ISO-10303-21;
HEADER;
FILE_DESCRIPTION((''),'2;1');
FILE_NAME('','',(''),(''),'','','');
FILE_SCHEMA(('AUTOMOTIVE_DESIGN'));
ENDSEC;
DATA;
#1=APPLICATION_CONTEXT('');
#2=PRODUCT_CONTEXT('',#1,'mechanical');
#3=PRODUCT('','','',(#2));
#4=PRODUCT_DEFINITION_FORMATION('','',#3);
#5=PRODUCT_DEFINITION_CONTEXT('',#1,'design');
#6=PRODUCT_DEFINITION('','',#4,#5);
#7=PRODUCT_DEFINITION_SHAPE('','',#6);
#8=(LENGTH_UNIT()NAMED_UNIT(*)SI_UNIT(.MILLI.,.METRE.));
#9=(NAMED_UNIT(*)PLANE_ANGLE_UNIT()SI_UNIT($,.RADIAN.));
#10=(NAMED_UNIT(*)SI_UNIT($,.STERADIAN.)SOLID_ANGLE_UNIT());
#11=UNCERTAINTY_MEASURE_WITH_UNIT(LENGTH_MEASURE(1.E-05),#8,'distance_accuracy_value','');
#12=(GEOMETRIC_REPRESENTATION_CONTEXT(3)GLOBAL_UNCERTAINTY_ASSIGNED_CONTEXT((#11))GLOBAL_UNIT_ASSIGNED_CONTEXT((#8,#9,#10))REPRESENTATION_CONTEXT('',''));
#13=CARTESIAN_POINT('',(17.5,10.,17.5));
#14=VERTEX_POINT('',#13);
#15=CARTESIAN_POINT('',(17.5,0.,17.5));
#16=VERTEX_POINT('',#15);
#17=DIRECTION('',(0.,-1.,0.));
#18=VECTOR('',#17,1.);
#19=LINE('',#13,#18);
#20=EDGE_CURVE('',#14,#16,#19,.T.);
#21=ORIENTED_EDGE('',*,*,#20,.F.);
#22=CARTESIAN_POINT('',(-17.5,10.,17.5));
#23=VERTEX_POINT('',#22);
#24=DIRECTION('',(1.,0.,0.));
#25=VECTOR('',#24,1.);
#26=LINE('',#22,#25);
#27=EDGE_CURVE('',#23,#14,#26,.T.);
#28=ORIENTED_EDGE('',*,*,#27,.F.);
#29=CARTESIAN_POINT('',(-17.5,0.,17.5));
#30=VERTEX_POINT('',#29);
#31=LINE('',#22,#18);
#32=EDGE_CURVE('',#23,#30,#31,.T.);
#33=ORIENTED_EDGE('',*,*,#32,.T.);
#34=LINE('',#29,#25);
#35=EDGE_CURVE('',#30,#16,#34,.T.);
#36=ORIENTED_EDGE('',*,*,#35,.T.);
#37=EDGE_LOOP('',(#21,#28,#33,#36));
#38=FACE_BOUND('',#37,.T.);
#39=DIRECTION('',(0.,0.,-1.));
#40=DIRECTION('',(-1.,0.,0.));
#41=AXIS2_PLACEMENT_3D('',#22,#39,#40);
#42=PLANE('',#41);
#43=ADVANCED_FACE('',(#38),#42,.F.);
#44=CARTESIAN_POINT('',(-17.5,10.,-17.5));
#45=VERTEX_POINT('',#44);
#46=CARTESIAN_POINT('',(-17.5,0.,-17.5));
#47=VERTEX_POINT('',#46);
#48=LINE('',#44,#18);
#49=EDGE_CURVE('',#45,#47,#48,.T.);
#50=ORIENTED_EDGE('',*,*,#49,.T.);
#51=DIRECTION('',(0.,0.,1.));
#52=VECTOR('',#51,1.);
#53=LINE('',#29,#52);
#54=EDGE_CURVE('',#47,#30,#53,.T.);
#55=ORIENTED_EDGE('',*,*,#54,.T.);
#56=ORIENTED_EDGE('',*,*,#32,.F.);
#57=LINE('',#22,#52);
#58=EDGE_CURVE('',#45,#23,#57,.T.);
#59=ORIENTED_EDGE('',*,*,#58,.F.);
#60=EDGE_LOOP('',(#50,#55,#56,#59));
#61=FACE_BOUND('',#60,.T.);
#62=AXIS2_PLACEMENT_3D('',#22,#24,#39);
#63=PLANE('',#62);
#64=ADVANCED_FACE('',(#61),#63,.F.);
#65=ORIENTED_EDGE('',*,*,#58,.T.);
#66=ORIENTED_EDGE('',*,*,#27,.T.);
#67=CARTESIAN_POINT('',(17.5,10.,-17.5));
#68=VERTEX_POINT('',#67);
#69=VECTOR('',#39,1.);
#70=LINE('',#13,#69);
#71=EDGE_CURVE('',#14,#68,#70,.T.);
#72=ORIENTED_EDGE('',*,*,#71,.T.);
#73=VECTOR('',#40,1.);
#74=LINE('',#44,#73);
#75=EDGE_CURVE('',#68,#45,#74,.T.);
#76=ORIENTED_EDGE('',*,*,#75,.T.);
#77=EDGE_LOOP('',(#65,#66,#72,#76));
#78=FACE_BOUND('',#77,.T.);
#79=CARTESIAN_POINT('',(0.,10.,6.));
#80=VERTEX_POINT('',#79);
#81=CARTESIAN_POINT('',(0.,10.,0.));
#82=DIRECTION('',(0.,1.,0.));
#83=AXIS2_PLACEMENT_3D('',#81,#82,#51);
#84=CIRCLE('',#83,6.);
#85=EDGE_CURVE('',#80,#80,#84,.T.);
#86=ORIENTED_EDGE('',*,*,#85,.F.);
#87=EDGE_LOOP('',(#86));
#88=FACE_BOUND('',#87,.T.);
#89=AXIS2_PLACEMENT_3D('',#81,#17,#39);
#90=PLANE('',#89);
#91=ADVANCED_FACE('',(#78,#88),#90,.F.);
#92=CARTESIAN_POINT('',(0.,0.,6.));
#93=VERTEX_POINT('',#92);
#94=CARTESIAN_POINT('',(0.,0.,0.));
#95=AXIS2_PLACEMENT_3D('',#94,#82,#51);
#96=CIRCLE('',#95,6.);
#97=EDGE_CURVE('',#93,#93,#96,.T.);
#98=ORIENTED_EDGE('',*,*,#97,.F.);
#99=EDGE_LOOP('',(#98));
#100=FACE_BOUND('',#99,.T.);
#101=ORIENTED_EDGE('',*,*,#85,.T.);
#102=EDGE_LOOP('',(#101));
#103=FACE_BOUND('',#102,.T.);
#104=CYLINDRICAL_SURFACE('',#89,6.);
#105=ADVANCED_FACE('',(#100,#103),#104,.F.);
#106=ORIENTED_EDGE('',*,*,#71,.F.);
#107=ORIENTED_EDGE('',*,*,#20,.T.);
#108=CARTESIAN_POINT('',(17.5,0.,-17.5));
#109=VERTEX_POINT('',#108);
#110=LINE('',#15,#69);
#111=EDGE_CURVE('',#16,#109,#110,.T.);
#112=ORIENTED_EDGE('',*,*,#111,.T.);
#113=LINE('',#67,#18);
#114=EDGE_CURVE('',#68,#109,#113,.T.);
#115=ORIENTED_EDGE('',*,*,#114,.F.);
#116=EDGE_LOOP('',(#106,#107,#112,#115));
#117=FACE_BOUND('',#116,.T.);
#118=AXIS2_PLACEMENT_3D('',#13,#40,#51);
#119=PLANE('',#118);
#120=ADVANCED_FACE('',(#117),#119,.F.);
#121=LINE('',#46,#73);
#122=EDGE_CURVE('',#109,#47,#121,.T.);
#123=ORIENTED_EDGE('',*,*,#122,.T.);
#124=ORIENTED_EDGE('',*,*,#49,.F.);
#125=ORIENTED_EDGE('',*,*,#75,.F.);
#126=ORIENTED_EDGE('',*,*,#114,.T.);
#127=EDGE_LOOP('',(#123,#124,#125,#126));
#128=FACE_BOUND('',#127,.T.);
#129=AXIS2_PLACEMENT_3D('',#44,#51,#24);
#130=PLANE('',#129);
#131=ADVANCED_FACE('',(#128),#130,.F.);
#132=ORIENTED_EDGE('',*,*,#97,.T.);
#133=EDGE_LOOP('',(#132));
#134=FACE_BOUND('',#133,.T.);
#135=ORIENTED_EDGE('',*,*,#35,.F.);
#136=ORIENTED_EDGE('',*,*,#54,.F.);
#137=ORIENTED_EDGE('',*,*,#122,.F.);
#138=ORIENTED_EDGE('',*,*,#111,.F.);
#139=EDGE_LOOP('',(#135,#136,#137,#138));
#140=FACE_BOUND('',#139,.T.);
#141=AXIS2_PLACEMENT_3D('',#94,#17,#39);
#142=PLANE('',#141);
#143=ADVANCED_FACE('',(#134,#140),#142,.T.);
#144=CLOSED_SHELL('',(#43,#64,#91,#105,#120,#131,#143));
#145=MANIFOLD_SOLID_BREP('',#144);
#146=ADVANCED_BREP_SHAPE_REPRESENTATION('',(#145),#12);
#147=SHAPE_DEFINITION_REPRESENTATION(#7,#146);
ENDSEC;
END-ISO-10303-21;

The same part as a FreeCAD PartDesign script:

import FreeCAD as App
import Part
import Sketcher
Q = App.Units.Quantity


def add_polygon(sketch, points):
    """Adds a closed chain of lines whose ends are joined by coincident constraints."""
    first, n = sketch.GeometryCount, len(points)
    for a, b in zip(points, points[1:] + points[:1]):
        sketch.addGeometry(Part.LineSegment(App.Vector(*a, 0), App.Vector(*b, 0)), False)
    for i in range(n):
        sketch.addConstraint(Sketcher.Constraint("Coincident", first + i, 2, first + (i + 1) % n, 1))

doc = App.newDocument("Part")
params = doc.addObject("Spreadsheet::Sheet", "Params")
for row, (alias, value) in enumerate([
    ("sketch1_diameter", "12 mm"),
    ("sketch1_width", "35 mm"),
    ("pad1_length", "10 mm"),
], start=1):
    params.set(f"A{row}", alias)
    params.set(f"B{row}", "=" + value)
    params.setAlias(f"B{row}", alias)

body = doc.addObject("PartDesign::Body", "Body")

sketch1 = body.newObject("Sketcher::SketchObject", "Sketch")
sketch1.AttachmentSupport = (doc.getObject("XZ_Plane"), [""])
sketch1.MapMode = "FlatFace"
add_polygon(sketch1, [(-18, -18), (-18, 18), (18, 18), (18, -18)])
sketch1.addGeometry(Part.Circle(App.Vector(0, 0, 0), App.Vector(0, 0, 1), 6), False)
sketch1.addConstraint(Sketcher.Constraint("Vertical", 0))
sketch1.addConstraint(Sketcher.Constraint("Horizontal", 1))
sketch1.addConstraint(Sketcher.Constraint("Vertical", 2))
sketch1.addConstraint(Sketcher.Constraint("Horizontal", 3))
sketch1.addConstraint(Sketcher.Constraint("Coincident", 4, 3, -1, 1))
sketch1.addConstraint(Sketcher.Constraint("Symmetric", 0, 2, 2, 2, -1, 1))
sketch1.addConstraint(Sketcher.Constraint("Equal", 3, 0))
sketch1.addConstraint(Sketcher.Constraint("Diameter", 4, Q("12 mm")))
sketch1.addConstraint(Sketcher.Constraint("DistanceX", 1, 1, 1, 2, Q("35 mm")))
sketch1.setExpression("Constraints[11]", "Params.sketch1_diameter")
sketch1.setExpression("Constraints[12]", "Params.sketch1_width")
pad1 = body.newObject("PartDesign::Pad", "Pad")
pad1.Profile = sketch1
pad1.setExpression("Length", "Params.pad1_length")
pad1.Reversed = True

doc.recompute()
